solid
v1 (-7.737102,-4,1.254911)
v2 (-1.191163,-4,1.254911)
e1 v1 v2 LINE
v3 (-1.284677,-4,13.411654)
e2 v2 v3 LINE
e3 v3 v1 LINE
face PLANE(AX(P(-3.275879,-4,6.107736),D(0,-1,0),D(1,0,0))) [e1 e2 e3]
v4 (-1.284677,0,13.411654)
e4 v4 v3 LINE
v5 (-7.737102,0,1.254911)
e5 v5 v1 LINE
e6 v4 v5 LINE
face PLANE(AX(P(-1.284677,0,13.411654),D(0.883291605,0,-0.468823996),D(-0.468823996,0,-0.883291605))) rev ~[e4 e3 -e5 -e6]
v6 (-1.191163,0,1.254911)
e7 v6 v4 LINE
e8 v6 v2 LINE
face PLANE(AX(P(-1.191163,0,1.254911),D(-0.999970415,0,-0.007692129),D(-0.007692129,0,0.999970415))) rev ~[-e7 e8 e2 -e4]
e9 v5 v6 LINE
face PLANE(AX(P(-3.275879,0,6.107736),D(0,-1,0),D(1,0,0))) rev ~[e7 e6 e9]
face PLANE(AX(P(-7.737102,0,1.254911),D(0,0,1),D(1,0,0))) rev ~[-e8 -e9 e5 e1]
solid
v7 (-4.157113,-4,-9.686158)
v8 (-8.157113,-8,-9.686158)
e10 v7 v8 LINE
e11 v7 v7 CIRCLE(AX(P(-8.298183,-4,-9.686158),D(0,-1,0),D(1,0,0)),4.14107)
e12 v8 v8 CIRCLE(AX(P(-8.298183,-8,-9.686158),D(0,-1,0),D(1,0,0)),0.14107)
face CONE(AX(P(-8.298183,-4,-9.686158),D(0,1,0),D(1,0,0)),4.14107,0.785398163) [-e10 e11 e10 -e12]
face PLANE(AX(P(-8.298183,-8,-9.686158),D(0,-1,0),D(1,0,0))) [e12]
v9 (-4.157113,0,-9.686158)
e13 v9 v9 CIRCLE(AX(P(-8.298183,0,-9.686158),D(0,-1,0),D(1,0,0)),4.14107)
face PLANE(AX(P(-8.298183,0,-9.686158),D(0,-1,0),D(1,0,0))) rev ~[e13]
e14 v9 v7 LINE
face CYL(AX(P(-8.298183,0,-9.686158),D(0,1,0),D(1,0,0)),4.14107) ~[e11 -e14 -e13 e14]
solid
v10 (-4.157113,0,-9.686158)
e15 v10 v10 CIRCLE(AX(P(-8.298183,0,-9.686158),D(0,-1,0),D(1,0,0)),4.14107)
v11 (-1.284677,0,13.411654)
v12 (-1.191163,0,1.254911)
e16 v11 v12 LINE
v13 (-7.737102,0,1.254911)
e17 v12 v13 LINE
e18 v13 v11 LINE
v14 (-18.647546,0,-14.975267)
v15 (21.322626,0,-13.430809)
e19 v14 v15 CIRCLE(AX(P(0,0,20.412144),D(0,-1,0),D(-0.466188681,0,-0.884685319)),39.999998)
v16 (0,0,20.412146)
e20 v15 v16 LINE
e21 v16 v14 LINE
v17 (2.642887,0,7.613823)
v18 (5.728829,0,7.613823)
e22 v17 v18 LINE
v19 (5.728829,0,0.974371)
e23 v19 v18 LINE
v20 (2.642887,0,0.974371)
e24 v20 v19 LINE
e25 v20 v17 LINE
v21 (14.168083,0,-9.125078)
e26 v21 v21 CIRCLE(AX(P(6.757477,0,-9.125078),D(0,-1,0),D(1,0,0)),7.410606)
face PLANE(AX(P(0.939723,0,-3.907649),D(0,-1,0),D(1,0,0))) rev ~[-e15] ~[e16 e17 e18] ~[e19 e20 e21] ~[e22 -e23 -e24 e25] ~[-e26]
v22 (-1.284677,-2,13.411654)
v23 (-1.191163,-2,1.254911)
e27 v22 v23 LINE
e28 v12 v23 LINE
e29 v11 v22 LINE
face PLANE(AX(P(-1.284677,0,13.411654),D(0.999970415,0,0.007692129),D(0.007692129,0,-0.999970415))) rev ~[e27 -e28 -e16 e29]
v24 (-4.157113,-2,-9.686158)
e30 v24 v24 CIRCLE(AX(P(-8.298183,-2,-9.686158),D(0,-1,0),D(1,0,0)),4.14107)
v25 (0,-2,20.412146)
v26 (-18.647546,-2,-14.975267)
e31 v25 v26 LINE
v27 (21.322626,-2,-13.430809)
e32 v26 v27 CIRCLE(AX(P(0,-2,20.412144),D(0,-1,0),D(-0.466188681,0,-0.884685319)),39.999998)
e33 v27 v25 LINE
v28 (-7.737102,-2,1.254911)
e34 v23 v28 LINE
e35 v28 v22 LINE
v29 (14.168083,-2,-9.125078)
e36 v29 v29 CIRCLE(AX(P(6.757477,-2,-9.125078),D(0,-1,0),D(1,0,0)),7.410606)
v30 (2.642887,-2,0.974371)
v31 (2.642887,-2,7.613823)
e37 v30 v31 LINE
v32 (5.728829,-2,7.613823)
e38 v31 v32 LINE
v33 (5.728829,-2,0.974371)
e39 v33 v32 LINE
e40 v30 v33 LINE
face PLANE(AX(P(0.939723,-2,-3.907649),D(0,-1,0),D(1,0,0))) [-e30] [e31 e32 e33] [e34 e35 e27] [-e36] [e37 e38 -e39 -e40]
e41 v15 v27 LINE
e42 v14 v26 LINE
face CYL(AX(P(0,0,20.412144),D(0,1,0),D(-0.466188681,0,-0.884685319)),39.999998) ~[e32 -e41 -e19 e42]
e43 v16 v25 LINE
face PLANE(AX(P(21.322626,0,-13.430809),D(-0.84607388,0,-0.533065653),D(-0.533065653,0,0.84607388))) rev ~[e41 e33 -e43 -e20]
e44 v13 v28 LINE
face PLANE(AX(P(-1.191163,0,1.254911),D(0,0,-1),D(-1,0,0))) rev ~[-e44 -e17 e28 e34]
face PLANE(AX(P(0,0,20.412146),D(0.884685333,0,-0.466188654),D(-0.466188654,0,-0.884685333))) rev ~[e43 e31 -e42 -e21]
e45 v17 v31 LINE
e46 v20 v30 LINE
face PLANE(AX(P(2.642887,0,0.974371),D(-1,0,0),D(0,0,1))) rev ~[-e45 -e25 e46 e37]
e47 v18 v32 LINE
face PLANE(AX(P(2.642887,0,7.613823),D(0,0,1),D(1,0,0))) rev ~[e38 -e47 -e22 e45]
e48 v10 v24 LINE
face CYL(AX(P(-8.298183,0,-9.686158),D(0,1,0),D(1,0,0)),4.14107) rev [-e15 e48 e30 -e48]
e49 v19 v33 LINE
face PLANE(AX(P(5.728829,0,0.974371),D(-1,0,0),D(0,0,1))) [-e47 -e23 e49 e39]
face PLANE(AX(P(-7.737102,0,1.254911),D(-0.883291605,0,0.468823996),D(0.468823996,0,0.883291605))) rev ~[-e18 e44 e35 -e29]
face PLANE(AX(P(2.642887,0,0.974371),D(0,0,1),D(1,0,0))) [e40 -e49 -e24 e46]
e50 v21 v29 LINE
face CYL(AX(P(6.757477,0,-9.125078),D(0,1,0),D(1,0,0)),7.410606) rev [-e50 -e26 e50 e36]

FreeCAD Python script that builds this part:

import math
import FreeCAD as App
import Part
import Sketcher
from FreeCAD import Vector


def edges_at(feature, points):
    """Names of the edges that pass closest to the given points."""
    edges = feature.Shape.Edges
    near = lambda p: min(range(len(edges)), key=lambda i: edges[i].distToShape(Part.Vertex(*p))[0])
    return sorted({f"Edge{near(p) + 1}" for p in points})

doc = App.newDocument("Part")
body = doc.addObject("PartDesign::Body", "Body")

# Sketch on XZ plane
sketch1 = doc.addObject("Sketcher::SketchObject", "Sketch")
body.addObject(sketch1)
sketch1.AttachmentSupport = (doc.XZ_Plane, [""])
sketch1.MapMode = "FlatFace"
sketch1.addGeometry([
    Part.LineSegment(Vector(21.3, -13.4, 0), Vector(0, 20.4, 0)),  # 0
    Part.LineSegment(Vector(0, 20.4, 0), Vector(-18.6, -15, 0)),  # 1
    Part.ArcOfCircle(Part.Circle(Vector(0, 20.4, 0), Vector(0, 0, 1), 40), math.radians(-118), math.radians(-58)),  # 2
    Part.Circle(Vector(-8.3, -9.7, 0), Vector(0, 0, 1), 4.1),  # 3
    Part.Circle(Vector(6.8, -9.1, 0), Vector(0, 0, 1), 7.4),  # 4
    Part.LineSegment(Vector(-1.2, 1.3, 0), Vector(-7.7, 1.3, 0)),  # 5
    Part.LineSegment(Vector(-7.7, 1.3, 0), Vector(-1.3, 13.4, 0)),  # 6
    Part.LineSegment(Vector(-1.3, 13.4, 0), Vector(-1.2, 1.3, 0)),  # 7
    Part.LineSegment(Vector(5.7, 1, 0), Vector(2.6, 1, 0)),  # 8
    Part.LineSegment(Vector(2.6, 1, 0), Vector(2.6, 7.6, 0)),  # 9
    Part.LineSegment(Vector(2.6, 7.6, 0), Vector(5.7, 7.6, 0)),  # 10
    Part.LineSegment(Vector(5.7, 7.6, 0), Vector(5.7, 1, 0)),  # 11
], False)
sketch1.addConstraint([
    Sketcher.Constraint("Coincident", 0, 2, 1, 1),
    Sketcher.Constraint("Coincident", 1, 2, 2, 1),
    Sketcher.Constraint("Coincident", 2, 2, 0, 1),
    Sketcher.Constraint("Coincident", 5, 2, 6, 1),
    Sketcher.Constraint("Coincident", 6, 2, 7, 1),
    Sketcher.Constraint("Coincident", 7, 2, 5, 1),
    Sketcher.Constraint("Coincident", 8, 2, 9, 1),
    Sketcher.Constraint("Coincident", 9, 2, 10, 1),
    Sketcher.Constraint("Coincident", 10, 2, 11, 1),
    Sketcher.Constraint("Coincident", 11, 2, 8, 1),
    Sketcher.Constraint("Horizontal", 5),
    Sketcher.Constraint("Horizontal", 8),
    Sketcher.Constraint("Vertical", 9),
    Sketcher.Constraint("Horizontal", 10),
    Sketcher.Constraint("Vertical", 11),
    Sketcher.Constraint("Coincident", 0, 2, 2, 3),
    Sketcher.Constraint("PointOnObject", 2, 3, -2),
    Sketcher.Constraint("Distance", 0, 40.0),
    Sketcher.Constraint("Diameter", 3, 8.28214),
    Sketcher.Constraint("Diameter", 4, 14.821212),
    Sketcher.Constraint("Distance", 6, 13.763001),
    Sketcher.Constraint("DistanceX", 5, 2, 5, 1, 6.545939),
    Sketcher.Constraint("DistanceY", 9, 1, 9, 2, 6.639451),
    Sketcher.Constraint("DistanceY", 3, 3, 2, 3, 30.098302),
    Sketcher.Constraint("DistanceX", 8, 2, 8, 1, 3.085942),
    Sketcher.Constraint("DistanceY", 3, 3, -1, 1, 9.686158),
    Sketcher.Constraint("DistanceY", 2, 2, -1, 1, 13.430809),
    Sketcher.Constraint("DistanceY", -1, 1, 5, 2, 1.254911),
    Sketcher.Constraint("DistanceY", -1, 1, 8, 2, 0.974371),
    Sketcher.Constraint("DistanceX", -1, 1, 10, 2, 5.728829),
    Sketcher.Constraint("DistanceX", 3, 3, 4, 3, 15.05566),
    Sketcher.Constraint("DistanceY", 3, 3, 4, 3, 0.56108),
    Sketcher.Constraint("DistanceY", 1, 2, 3, 3, 5.289109),
    Sketcher.Constraint("DistanceX", 4, 3, 2, 2, 14.565149),
    Sketcher.Constraint("DistanceX", 3, 3, 5, 2, 0.561081),
    Sketcher.Constraint("DistanceY", 6, 2, 2, 3, 7.00049),
])
pad1 = doc.addObject("PartDesign::Pad", "Pad")
body.addObject(pad1)
pad1.Profile = sketch1
pad1.Length = 2
body2 = doc.addObject("PartDesign::Body", "Body001")

# Sketch on XZ plane
sketch2 = doc.addObject("Sketcher::SketchObject", "Sketch001")
body2.addObject(sketch2)
sketch2.AttachmentSupport = (doc.getObject("XZ_Plane001"), [""])
sketch2.MapMode = "FlatFace"
sketch2.addGeometry([
    Part.LineSegment(Vector(-1, 1, 0), Vector(-1, 13, 0)),
    Part.LineSegment(Vector(-1, 13, 0), Vector(-8, 1, 0)),
    Part.LineSegment(Vector(-8, 1, 0), Vector(-1, 1, 0)),
], False)
sketch2.addConstraint([
    Sketcher.Constraint("Coincident", 0, 2, 1, 1),
    Sketcher.Constraint("Coincident", 1, 2, 2, 1),
    Sketcher.Constraint("Coincident", 2, 2, 0, 1),
    Sketcher.Constraint("Horizontal", 2),
    Sketcher.Constraint("Distance", 1, 13.763001),
    Sketcher.Constraint("DistanceX", 2, 1, 2, 2, 6.545939),
    Sketcher.Constraint("DistanceY", -1, 1, 1, 2, 1.254911),
    Sketcher.Constraint("Distance", 0, 12.157103),
    Sketcher.Constraint("DistanceX", 0, 2, -1, 1, 1.284677),
])
pad2 = doc.addObject("PartDesign::Pad", "Pad001")
body2.addObject(pad2)
pad2.Profile = sketch2
pad2.Length = 4
body3 = doc.addObject("PartDesign::Body", "Body002")

# Sketch on XZ plane
sketch3 = doc.addObject("Sketcher::SketchObject", "Sketch002")
body3.addObject(sketch3)
sketch3.AttachmentSupport = (doc.getObject("XZ_Plane002"), [""])
sketch3.MapMode = "FlatFace"
sketch3.addGeometry(Part.Circle(Vector(-8.3, -9.7, 0), Vector(0, 0, 1), 4.1), False)
sketch3.addConstraint([
    Sketcher.Constraint("Diameter", 0, 8.28214),
    Sketcher.Constraint("DistanceY", 0, 3, -1, 1, 9.686158),
    Sketcher.Constraint("DistanceX", 0, 3, -1, 1, 8.298183),
])
pad3 = doc.addObject("PartDesign::Pad", "Pad002")
body3.addObject(pad3)
pad3.Profile = sketch3
pad3.Length = 8
doc.recompute()

chamfer = doc.addObject("PartDesign::Chamfer", "Chamfer")
body3.addObject(chamfer)
chamfer.Base = (pad3, edges_at(pad3, [(-12.439, -8, -9.686)]))
chamfer.Size = 4

doc.recompute()
